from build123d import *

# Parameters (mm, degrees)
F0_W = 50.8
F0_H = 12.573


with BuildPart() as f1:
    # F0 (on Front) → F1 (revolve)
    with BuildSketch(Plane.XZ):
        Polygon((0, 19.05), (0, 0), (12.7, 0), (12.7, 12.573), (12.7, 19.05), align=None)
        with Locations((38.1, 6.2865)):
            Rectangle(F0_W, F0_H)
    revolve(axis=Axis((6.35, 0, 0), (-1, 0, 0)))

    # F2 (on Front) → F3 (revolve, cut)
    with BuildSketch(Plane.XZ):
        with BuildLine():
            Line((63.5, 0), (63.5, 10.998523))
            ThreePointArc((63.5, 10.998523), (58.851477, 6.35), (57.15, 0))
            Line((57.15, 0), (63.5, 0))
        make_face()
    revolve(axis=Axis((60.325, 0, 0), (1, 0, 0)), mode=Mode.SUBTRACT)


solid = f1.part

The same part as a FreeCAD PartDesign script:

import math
import FreeCAD as App
import Part
import Sketcher

V = App.Vector
Q = App.Units.Quantity

doc = App.newDocument("Part")
body = doc.addObject("PartDesign::Body", "Body")

# Sketch on XZ plane
sketch1 = body.newObject("Sketcher::SketchObject", "Sketch")
sketch1.AttachmentSupport = (doc.getObject("XZ_Plane"), [""])
sketch1.MapMode = "FlatFace"
sketch1.addGeometry(Part.LineSegment(V(0, 19, 0), V(0, 0, 0)), False)
sketch1.addGeometry(Part.LineSegment(V(0, 0, 0), V(64, 0, 0)), False)
sketch1.addGeometry(Part.LineSegment(V(64, 0, 0), V(64, 13, 0)), False)
sketch1.addGeometry(Part.LineSegment(V(64, 13, 0), V(13, 13, 0)), False)
sketch1.addGeometry(Part.LineSegment(V(13, 13, 0), V(13, 19, 0)), False)
sketch1.addGeometry(Part.LineSegment(V(13, 19, 0), V(0, 19, 0)), False)
sketch1.addConstraint(Sketcher.Constraint("Coincident", 0, 2, 1, 1))
sketch1.addConstraint(Sketcher.Constraint("Coincident", 1, 2, 2, 1))
sketch1.addConstraint(Sketcher.Constraint("Coincident", 2, 2, 3, 1))
sketch1.addConstraint(Sketcher.Constraint("Coincident", 3, 2, 4, 1))
sketch1.addConstraint(Sketcher.Constraint("Coincident", 4, 2, 5, 1))
sketch1.addConstraint(Sketcher.Constraint("Coincident", 5, 2, 0, 1))
sketch1.addConstraint(Sketcher.Constraint("Vertical", 0))
sketch1.addConstraint(Sketcher.Constraint("Horizontal", 1))
sketch1.addConstraint(Sketcher.Constraint("Vertical", 2))
sketch1.addConstraint(Sketcher.Constraint("Horizontal", 3))
sketch1.addConstraint(Sketcher.Constraint("Vertical", 4))
sketch1.addConstraint(Sketcher.Constraint("Horizontal", 5))
sketch1.addConstraint(Sketcher.Constraint("Coincident", 0, 2, -1, 1))
sketch1.addConstraint(Sketcher.Constraint("DistanceX", 3, 2, 3, 1, Q("2 in")))
sketch1.addConstraint(Sketcher.Constraint("DistanceX", 1, 1, 1, 2, Q("2.5 in")))
sketch1.addConstraint(Sketcher.Constraint("DistanceY", 0, 2, 0, 1, Q("0.75 in")))
sketch1.addConstraint(Sketcher.Constraint("DistanceY", 2, 1, 2, 2, Q("0.495 in")))
revolution = body.newObject("PartDesign::Revolution", "Revolution")
revolution.Profile = sketch1
revolution.ReferenceAxis = (sketch1, ["H_Axis"])
revolution.Angle = 360

# Sketch on XZ plane
sketch2 = body.newObject("Sketcher::SketchObject", "Sketch001")
sketch2.AttachmentSupport = (doc.getObject("XZ_Plane"), [""])
sketch2.MapMode = "FlatFace"
sketch2.addGeometry(Part.LineSegment(V(64, 0, 0), V(64, 11, 0)), False)
sketch2.addGeometry(Part.ArcOfCircle(Part.Circle(V(70, 0, 0), V(0, 0, 1), 13), math.radians(120), math.radians(180)), False)
sketch2.addGeometry(Part.LineSegment(V(57, 0, 0), V(64, 0, 0)), False)
sketch2.addConstraint(Sketcher.Constraint("Coincident", 0, 2, 1, 1))
sketch2.addConstraint(Sketcher.Constraint("Coincident", 1, 2, 2, 1))
sketch2.addConstraint(Sketcher.Constraint("Coincident", 2, 2, 0, 1))
sketch2.addConstraint(Sketcher.Constraint("Vertical", 0))
sketch2.addConstraint(Sketcher.Constraint("Horizontal", 2))
sketch2.addConstraint(Sketcher.Constraint("PointOnObject", 1, 3, -1))
sketch2.addConstraint(Sketcher.Constraint("PointOnObject", 1, 2, -1))
sketch2.addConstraint(Sketcher.Constraint("Radius", 1, Q("0.5 in")))
sketch2.addConstraint(Sketcher.Constraint("DistanceX", 2, 1, 2, 2, Q("0.25 in")))
sketch2.addConstraint(Sketcher.Constraint("DistanceX", -1, 1, 0, 2, Q("2.5 in")))
groove = body.newObject("PartDesign::Groove", "Groove")
groove.Profile = sketch2
groove.ReferenceAxis = (sketch2, ["H_Axis"])
groove.Angle = 360

doc.recompute()
